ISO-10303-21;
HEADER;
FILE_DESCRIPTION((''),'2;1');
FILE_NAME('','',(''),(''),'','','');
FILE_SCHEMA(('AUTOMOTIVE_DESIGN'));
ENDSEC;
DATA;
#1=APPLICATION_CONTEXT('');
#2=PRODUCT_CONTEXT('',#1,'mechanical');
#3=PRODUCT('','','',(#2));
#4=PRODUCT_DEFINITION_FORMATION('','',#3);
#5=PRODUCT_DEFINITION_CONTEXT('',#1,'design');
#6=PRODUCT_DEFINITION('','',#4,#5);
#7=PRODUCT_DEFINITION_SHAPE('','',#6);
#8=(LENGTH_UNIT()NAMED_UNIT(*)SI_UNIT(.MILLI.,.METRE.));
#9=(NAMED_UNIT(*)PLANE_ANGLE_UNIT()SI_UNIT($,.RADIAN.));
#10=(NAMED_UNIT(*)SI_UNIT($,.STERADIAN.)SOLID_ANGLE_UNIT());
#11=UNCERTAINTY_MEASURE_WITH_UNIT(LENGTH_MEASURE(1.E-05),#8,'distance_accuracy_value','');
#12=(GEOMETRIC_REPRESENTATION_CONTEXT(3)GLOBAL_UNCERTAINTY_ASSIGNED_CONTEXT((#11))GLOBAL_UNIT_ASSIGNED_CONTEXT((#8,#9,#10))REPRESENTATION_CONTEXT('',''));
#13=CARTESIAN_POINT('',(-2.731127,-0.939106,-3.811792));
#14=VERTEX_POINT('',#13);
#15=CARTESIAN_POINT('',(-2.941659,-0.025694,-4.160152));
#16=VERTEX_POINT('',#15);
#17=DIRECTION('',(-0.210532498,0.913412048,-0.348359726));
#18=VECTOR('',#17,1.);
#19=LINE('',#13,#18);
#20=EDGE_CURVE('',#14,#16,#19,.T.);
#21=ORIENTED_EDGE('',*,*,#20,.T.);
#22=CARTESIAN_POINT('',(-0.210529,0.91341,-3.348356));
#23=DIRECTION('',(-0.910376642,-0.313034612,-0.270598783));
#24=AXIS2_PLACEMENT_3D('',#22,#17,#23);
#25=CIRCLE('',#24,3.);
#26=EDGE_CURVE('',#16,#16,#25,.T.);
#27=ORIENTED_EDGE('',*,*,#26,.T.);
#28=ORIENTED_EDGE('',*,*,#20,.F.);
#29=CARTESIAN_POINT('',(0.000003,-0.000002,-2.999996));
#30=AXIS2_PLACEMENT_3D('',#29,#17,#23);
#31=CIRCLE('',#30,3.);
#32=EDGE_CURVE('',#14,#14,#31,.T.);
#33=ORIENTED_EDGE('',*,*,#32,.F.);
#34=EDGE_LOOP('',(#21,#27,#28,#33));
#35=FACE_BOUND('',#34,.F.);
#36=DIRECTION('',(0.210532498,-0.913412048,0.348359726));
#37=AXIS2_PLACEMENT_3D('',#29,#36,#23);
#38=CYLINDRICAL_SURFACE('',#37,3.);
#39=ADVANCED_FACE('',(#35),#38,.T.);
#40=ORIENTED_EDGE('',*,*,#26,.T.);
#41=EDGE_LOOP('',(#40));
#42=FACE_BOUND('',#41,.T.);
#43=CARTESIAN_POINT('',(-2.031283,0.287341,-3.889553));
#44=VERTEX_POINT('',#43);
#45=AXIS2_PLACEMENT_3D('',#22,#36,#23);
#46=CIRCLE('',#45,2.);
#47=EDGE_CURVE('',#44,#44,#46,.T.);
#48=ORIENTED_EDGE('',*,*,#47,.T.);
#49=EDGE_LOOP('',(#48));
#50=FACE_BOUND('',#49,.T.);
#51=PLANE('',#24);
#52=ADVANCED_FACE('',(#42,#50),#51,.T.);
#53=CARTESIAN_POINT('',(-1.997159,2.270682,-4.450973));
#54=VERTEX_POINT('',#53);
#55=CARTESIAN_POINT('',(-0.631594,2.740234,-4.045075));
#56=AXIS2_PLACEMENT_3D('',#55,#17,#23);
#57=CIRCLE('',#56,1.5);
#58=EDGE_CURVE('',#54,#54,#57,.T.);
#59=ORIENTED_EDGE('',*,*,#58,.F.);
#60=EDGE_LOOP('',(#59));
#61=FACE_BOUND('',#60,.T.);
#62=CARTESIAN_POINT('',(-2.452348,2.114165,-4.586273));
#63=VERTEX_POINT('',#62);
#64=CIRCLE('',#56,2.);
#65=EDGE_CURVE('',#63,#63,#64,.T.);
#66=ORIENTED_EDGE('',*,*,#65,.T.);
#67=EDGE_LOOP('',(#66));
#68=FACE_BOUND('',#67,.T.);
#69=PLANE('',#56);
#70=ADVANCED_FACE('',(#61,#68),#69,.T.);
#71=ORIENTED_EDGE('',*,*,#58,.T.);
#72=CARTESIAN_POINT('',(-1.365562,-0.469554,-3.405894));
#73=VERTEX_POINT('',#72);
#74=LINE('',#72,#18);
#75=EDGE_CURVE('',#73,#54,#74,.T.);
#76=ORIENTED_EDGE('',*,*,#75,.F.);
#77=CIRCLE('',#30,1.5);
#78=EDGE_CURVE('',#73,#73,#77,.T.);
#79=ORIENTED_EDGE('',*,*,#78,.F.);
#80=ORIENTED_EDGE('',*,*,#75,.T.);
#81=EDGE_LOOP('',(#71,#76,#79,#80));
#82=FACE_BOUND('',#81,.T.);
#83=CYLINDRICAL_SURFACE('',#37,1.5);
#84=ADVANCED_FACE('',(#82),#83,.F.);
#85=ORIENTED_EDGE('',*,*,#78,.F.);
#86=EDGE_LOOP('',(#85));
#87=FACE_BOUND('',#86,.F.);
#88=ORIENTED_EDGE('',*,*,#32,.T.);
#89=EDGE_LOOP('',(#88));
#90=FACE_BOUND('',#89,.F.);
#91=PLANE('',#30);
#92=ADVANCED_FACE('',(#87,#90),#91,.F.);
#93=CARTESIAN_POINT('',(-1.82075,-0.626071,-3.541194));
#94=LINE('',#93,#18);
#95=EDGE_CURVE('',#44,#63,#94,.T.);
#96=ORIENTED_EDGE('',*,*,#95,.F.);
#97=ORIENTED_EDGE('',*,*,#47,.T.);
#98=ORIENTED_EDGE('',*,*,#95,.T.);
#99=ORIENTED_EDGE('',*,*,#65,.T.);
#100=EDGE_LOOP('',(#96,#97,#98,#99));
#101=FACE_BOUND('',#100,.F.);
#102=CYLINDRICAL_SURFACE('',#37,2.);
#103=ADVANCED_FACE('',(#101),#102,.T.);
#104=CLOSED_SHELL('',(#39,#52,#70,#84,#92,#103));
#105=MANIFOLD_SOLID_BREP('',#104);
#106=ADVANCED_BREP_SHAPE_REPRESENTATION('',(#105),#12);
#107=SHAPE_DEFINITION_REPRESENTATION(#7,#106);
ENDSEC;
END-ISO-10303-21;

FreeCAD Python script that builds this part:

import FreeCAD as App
import Part
import Sketcher
Q = App.Units.Quantity

doc = App.newDocument("Part")
params = doc.addObject("Spreadsheet::Sheet", "Params")
for row, (alias, value) in enumerate([
    ("sketch1_diameter", "3 mm"),
    ("pad1_length", "3 mm"),
    ("sketch2_diameter", "4 mm"),
    ("pad2_length", "3 mm"),
    ("sketch3_diameter", "6 mm"),
    ("pad3_length", "1 mm"),
], start=1):
    params.set(f"A{row}", alias)
    params.set(f"B{row}", "=" + value)
    params.setAlias(f"B{row}", alias)

body = doc.addObject("PartDesign::Body", "Body")

# Sketch on XY plane
sketch1 = body.newObject("Sketcher::SketchObject", "Sketch")
sketch1.AttachmentSupport = (doc.getObject("XY_Plane"), [""])
sketch1.MapMode = "FlatFace"
sketch1.addGeometry(Part.Circle(App.Vector(0, 0, 0), App.Vector(0, 0, 1), 1.5), False)
sketch1.addConstraint([
    Sketcher.Constraint("Coincident", 0, 3, -1, 1),
    Sketcher.Constraint("Diameter", 0, Q("3 mm")),
])
sketch1.setExpression("Constraints[1]", "Params.sketch1_diameter")
pad1 = body.newObject("PartDesign::Pad", "Pad")
pad1.Profile = sketch1
pad1.setExpression("Length", "Params.pad1_length")
body2 = doc.addObject("PartDesign::Body", "Body001")

# Sketch on XY plane
sketch2 = body2.newObject("Sketcher::SketchObject", "Sketch001")
sketch2.AttachmentSupport = (doc.getObject("XY_Plane001"), [""])
sketch2.MapMode = "FlatFace"
sketch2.addGeometry(Part.Circle(App.Vector(0, 0, 0), App.Vector(0, 0, 1), 2), False)
sketch2.addConstraint([
    Sketcher.Constraint("Coincident", 0, 3, -1, 1),
    Sketcher.Constraint("Diameter", 0, Q("4 mm")),
])
sketch2.setExpression("Constraints[1]", "Params.sketch2_diameter")
pad2 = body2.newObject("PartDesign::Pad", "Pad001")
pad2.Profile = sketch2
pad2.setExpression("Length", "Params.pad2_length")
body3 = doc.addObject("PartDesign::Body", "Body002")

# Sketch on XY plane
sketch3 = body3.newObject("Sketcher::SketchObject", "Sketch002")
sketch3.AttachmentSupport = (doc.getObject("XY_Plane002"), [""])
sketch3.MapMode = "FlatFace"
sketch3.addGeometry(Part.Circle(App.Vector(0, 0, 0), App.Vector(0, 0, 1), 3), False)
sketch3.addConstraint([
    Sketcher.Constraint("Coincident", 0, 3, -1, 1),
    Sketcher.Constraint("Diameter", 0, Q("6 mm")),
])
sketch3.setExpression("Constraints[1]", "Params.sketch3_diameter")
pad3 = body3.newObject("PartDesign::Pad", "Pad002")
pad3.Profile = sketch3
pad3.setExpression("Length", "Params.pad3_length")
doc.recompute()

boolean = body3.newObject("PartDesign::Boolean", "Boolean")
boolean.Type = "Fuse"
boolean.addObjects([body2])
doc.recompute()

boolean2 = body3.newObject("PartDesign::Boolean", "Boolean001")
boolean2.Type = "Cut"
boolean2.addObjects([body])
body4 = doc.addObject("PartDesign::Body", "Body003")
doc.recompute()

body3.Placement = App.Placement(App.Vector(0, 0, 0), App.Rotation(App.Vector(1, 0, 0), 111.214464))
boolean3 = body4.newObject("PartDesign::Boolean", "Boolean002")
boolean3.Type = "Fuse"
boolean3.addObjects([body3])
body5 = doc.addObject("PartDesign::Body", "Body004")
doc.recompute()

body4.Placement = App.Placement(App.Vector(0, 0, 0), App.Rotation(App.Vector(0, 1, 0), 15.699901))
boolean4 = body5.newObject("PartDesign::Boolean", "Boolean003")
boolean4.Type = "Fuse"
boolean4.addObjects([body4])
body6 = doc.addObject("PartDesign::Body", "Body005")
doc.recompute()

body5.Placement = App.Placement(App.Vector(0.000003, -0.000002, -2.999996), App.Rotation(App.Vector(0, 0, 1), 198.975622))
boolean5 = body6.newObject("PartDesign::Boolean", "Boolean004")
boolean5.Type = "Fuse"
boolean5.addObjects([body5])

doc.recompute()
